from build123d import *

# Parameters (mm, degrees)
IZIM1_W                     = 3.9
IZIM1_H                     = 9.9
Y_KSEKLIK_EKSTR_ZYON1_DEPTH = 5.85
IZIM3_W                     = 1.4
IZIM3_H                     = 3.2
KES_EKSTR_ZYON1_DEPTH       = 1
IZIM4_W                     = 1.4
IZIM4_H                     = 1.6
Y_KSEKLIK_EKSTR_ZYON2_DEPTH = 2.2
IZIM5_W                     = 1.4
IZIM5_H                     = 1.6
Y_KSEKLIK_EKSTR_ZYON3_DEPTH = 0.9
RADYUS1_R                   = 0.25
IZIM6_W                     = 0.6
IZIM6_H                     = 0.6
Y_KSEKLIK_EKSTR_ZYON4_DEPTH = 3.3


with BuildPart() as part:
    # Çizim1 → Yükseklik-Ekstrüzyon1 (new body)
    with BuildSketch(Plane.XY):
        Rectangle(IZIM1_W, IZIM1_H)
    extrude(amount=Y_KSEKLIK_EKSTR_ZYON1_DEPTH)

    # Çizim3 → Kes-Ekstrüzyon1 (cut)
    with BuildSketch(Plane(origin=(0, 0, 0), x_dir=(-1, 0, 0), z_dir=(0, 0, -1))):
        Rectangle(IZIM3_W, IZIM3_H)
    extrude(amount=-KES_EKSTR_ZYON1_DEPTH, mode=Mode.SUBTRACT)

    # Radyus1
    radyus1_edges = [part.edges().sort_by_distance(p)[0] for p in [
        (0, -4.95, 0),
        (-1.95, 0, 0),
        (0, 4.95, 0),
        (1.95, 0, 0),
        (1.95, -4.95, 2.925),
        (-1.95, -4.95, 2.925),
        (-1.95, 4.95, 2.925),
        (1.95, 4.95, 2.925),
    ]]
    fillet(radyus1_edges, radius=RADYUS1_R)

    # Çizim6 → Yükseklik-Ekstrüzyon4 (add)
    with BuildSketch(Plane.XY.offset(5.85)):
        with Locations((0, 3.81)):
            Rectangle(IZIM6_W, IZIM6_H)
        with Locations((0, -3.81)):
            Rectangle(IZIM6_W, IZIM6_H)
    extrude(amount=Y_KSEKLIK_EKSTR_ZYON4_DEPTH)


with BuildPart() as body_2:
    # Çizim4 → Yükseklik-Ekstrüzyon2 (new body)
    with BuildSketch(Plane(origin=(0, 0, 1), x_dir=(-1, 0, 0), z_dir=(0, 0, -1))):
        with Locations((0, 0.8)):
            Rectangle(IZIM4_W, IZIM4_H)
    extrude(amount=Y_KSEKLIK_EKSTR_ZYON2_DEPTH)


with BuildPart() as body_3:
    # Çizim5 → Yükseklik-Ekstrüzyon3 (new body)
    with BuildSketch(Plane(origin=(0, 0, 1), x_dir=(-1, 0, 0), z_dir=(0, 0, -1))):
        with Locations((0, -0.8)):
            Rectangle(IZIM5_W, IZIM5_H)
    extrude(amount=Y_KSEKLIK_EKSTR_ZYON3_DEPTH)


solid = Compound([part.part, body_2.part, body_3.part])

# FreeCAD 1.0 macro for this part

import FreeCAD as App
import Part
import Sketcher
from FreeCAD import Vector


def edges_at(feature, points):
    """Names of the edges that pass closest to the given points."""
    edges = feature.Shape.Edges
    near = lambda p: min(range(len(edges)), key=lambda i: edges[i].distToShape(Part.Vertex(*p))[0])
    return sorted({f"Edge{near(p) + 1}" for p in points})

doc = App.newDocument("Part")
body = doc.addObject("PartDesign::Body", "Body")

# Sketch on XY plane
sketch1 = doc.addObject("Sketcher::SketchObject", "Sketch")
body.addObject(sketch1)
sketch1.AttachmentSupport = (doc.XY_Plane, [""])
sketch1.MapMode = "FlatFace"
sketch1.addGeometry([
    Part.LineSegment(Vector(-1.9, 5, 0), Vector(-1.9, -5, 0)),
    Part.LineSegment(Vector(-1.9, -5, 0), Vector(1.9, -5, 0)),
    Part.LineSegment(Vector(1.9, -5, 0), Vector(1.9, 5, 0)),
    Part.LineSegment(Vector(1.9, 5, 0), Vector(-1.9, 5, 0)),
], False)
sketch1.addConstraint([
    Sketcher.Constraint("Coincident", 0, 2, 1, 1),
    Sketcher.Constraint("Coincident", 1, 2, 2, 1),
    Sketcher.Constraint("Coincident", 2, 2, 3, 1),
    Sketcher.Constraint("Coincident", 3, 2, 0, 1),
    Sketcher.Constraint("Vertical", 0),
    Sketcher.Constraint("Horizontal", 1),
    Sketcher.Constraint("Vertical", 2),
    Sketcher.Constraint("Horizontal", 3),
    Sketcher.Constraint("Symmetric", 0, 2, 2, 2, -1, 1),
    Sketcher.Constraint("DistanceX", 1, 1, 1, 2, 3.9),
    Sketcher.Constraint("DistanceY", 0, 2, 0, 1, 9.9),
])
pad1 = doc.addObject("PartDesign::Pad", "Pad")
body.addObject(pad1)
pad1.Profile = sketch1
pad1.Length = 5.85

# Sketch on XY plane
sketch2 = doc.addObject("Sketcher::SketchObject", "Sketch001")
body.addObject(sketch2)
sketch2.AttachmentSupport = (doc.XY_Plane, [""])
sketch2.MapMode = "FlatFace"
sketch2.addGeometry([
    Part.LineSegment(Vector(0.7, 1.6, 0), Vector(0.7, -1.6, 0)),
    Part.LineSegment(Vector(0.7, -1.6, 0), Vector(-0.7, -1.6, 0)),
    Part.LineSegment(Vector(-0.7, -1.6, 0), Vector(-0.7, 1.6, 0)),
    Part.LineSegment(Vector(-0.7, 1.6, 0), Vector(0.7, 1.6, 0)),
], False)
sketch2.addConstraint([
    Sketcher.Constraint("Coincident", 0, 2, 1, 1),
    Sketcher.Constraint("Coincident", 1, 2, 2, 1),
    Sketcher.Constraint("Coincident", 2, 2, 3, 1),
    Sketcher.Constraint("Coincident", 3, 2, 0, 1),
    Sketcher.Constraint("Vertical", 0),
    Sketcher.Constraint("Horizontal", 1),
    Sketcher.Constraint("Vertical", 2),
    Sketcher.Constraint("Horizontal", 3),
    Sketcher.Constraint("Symmetric", 0, 2, 2, 2, -1, 1),
    Sketcher.Constraint("DistanceX", 1, 2, 1, 1, 1.4),
    Sketcher.Constraint("DistanceY", 0, 2, 0, 1, 3.2),
])
pocket1 = doc.addObject("PartDesign::Pocket", "Pocket")
body.addObject(pocket1)
pocket1.Profile = sketch2
pocket1.Length = 1
pocket1.Reversed = True
doc.recompute()

fillet = doc.addObject("PartDesign::Fillet", "Fillet")
body.addObject(fillet)
fillet.Base = (pocket1, edges_at(pocket1, [
    (0, -4.95, 0),
    (-1.95, 0, 0),
    (0, 4.95, 0),
    (1.95, 0, 0),
    (1.95, -4.95, 2.925),
    (-1.95, -4.95, 2.925),
    (-1.95, 4.95, 2.925),
    (1.95, 4.95, 2.925),
]))
fillet.Radius = 0.25

# Sketch on XY plane
sketch3 = doc.addObject("Sketcher::SketchObject", "Sketch002")
body.addObject(sketch3)
sketch3.AttachmentSupport = (doc.XY_Plane, [""])
sketch3.MapMode = "FlatFace"
sketch3.AttachmentOffset = App.Placement(Vector(0, 0, 5.85), App.Rotation())
sketch3.addGeometry([
    Part.LineSegment(Vector(-0.3, 4.1, 0), Vector(-0.3, 3.5, 0)),  # 0
    Part.LineSegment(Vector(-0.3, 3.5, 0), Vector(0.3, 3.5, 0)),  # 1
    Part.LineSegment(Vector(0.3, 3.5, 0), Vector(0.3, 4.1, 0)),  # 2
    Part.LineSegment(Vector(0.3, 4.1, 0), Vector(-0.3, 4.1, 0)),  # 3
    Part.LineSegment(Vector(-0.3, -3.5, 0), Vector(-0.3, -4.1, 0)),  # 4
    Part.LineSegment(Vector(-0.3, -4.1, 0), Vector(0.3, -4.1, 0)),  # 5
    Part.LineSegment(Vector(0.3, -4.1, 0), Vector(0.3, -3.5, 0)),  # 6
    Part.LineSegment(Vector(0.3, -3.5, 0), Vector(-0.3, -3.5, 0)),  # 7
], False)
sketch3.addConstraint([
    Sketcher.Constraint("Coincident", 0, 2, 1, 1),
    Sketcher.Constraint("Coincident", 1, 2, 2, 1),
    Sketcher.Constraint("Coincident", 2, 2, 3, 1),
    Sketcher.Constraint("Coincident", 3, 2, 0, 1),
    Sketcher.Constraint("Coincident", 4, 2, 5, 1),
    Sketcher.Constraint("Coincident", 5, 2, 6, 1),
    Sketcher.Constraint("Coincident", 6, 2, 7, 1),
    Sketcher.Constraint("Coincident", 7, 2, 4, 1),
    Sketcher.Constraint("Vertical", 0),
    Sketcher.Constraint("Horizontal", 1),
    Sketcher.Constraint("Vertical", 2),
    Sketcher.Constraint("Horizontal", 3),
    Sketcher.Constraint("Vertical", 4),
    Sketcher.Constraint("Horizontal", 5),
    Sketcher.Constraint("Vertical", 6),
    Sketcher.Constraint("Horizontal", 7),
    Sketcher.Constraint("Symmetric", 2, 2, 4, 2, -1, 1),
    Sketcher.Constraint("Symmetric", 0, 2, 6, 2, -1, 1),
    Sketcher.Constraint("Vertical", 3, 2, 4, 2),
    Sketcher.Constraint("Equal", 7, 0),
    Sketcher.Constraint("DistanceX", 1, 1, 1, 2, 0.6),
    Sketcher.Constraint("DistanceY", -1, 1, 0, 2, 3.51),
])
pad2 = doc.addObject("PartDesign::Pad", "Pad001")
body.addObject(pad2)
pad2.Profile = sketch3
pad2.Length = 3.3
body2 = doc.addObject("PartDesign::Body", "Body001")

# Sketch on XY plane
sketch4 = doc.addObject("Sketcher::SketchObject", "Sketch003")
body2.addObject(sketch4)
sketch4.AttachmentSupport = (doc.getObject("XY_Plane001"), [""])
sketch4.MapMode = "FlatFace"
sketch4.AttachmentOffset = App.Placement(Vector(0, 0, 1), App.Rotation())
sketch4.addGeometry([
    Part.LineSegment(Vector(0.7, 1.6, 0), Vector(0.7, 0, 0)),
    Part.LineSegment(Vector(0.7, 0, 0), Vector(-0.7, 0, 0)),
    Part.LineSegment(Vector(-0.7, 0, 0), Vector(-0.7, 1.6, 0)),
    Part.LineSegment(Vector(-0.7, 1.6, 0), Vector(0.7, 1.6, 0)),
], False)
sketch4.addConstraint([
    Sketcher.Constraint("Coincident", 0, 2, 1, 1),
    Sketcher.Constraint("Coincident", 1, 2, 2, 1),
    Sketcher.Constraint("Coincident", 2, 2, 3, 1),
    Sketcher.Constraint("Coincident", 3, 2, 0, 1),
    Sketcher.Constraint("Vertical", 0),
    Sketcher.Constraint("Horizontal", 1),
    Sketcher.Constraint("Vertical", 2),
    Sketcher.Constraint("Horizontal", 3),
    Sketcher.Constraint("Symmetric", 0, 2, 1, 2, -1, 1),
    Sketcher.Constraint("DistanceX", 1, 2, 1, 1, 1.4),
    Sketcher.Constraint("DistanceY", 0, 2, 0, 1, 1.6),
])
pad3 = doc.addObject("PartDesign::Pad", "Pad002")
body2.addObject(pad3)
pad3.Profile = sketch4
pad3.Length = 2.2
pad3.Reversed = True
body3 = doc.addObject("PartDesign::Body", "Body002")

# Sketch on XY plane
sketch5 = doc.addObject("Sketcher::SketchObject", "Sketch004")
body3.addObject(sketch5)
sketch5.AttachmentSupport = (doc.getObject("XY_Plane002"), [""])
sketch5.MapMode = "FlatFace"
sketch5.AttachmentOffset = App.Placement(Vector(0, 0, 1), App.Rotation())
sketch5.addGeometry([
    Part.LineSegment(Vector(0.7, 0, 0), Vector(0.7, -1.6, 0)),
    Part.LineSegment(Vector(0.7, -1.6, 0), Vector(-0.7, -1.6, 0)),
    Part.LineSegment(Vector(-0.7, -1.6, 0), Vector(-0.7, 0, 0)),
    Part.LineSegment(Vector(-0.7, 0, 0), Vector(0.7, 0, 0)),
], False)
sketch5.addConstraint([
    Sketcher.Constraint("Coincident", 0, 2, 1, 1),
    Sketcher.Constraint("Coincident", 1, 2, 2, 1),
    Sketcher.Constraint("Coincident", 2, 2, 3, 1),
    Sketcher.Constraint("Coincident", 3, 2, 0, 1),
    Sketcher.Constraint("Vertical", 0),
    Sketcher.Constraint("Horizontal", 1),
    Sketcher.Constraint("Vertical", 2),
    Sketcher.Constraint("Horizontal", 3),
    Sketcher.Constraint("Symmetric", 2, 2, 3, 2, -1, 1),
    Sketcher.Constraint("DistanceX", 1, 2, 1, 1, 1.4),
    Sketcher.Constraint("DistanceY", 0, 2, 0, 1, 1.6),
])
pad4 = doc.addObject("PartDesign::Pad", "Pad003")
body3.addObject(pad4)
pad4.Profile = sketch5
pad4.Length = 0.9
pad4.Reversed = True

doc.recompute()
